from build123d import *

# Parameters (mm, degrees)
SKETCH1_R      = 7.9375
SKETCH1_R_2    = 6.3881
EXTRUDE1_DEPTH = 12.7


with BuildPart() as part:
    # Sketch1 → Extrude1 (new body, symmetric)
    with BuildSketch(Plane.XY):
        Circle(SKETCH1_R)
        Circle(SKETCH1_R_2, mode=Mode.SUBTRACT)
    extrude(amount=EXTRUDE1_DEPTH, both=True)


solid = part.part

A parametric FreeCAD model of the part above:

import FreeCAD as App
import Part
import Sketcher
from FreeCAD import Vector
Q = App.Units.Quantity

doc = App.newDocument("Part")
body = doc.addObject("PartDesign::Body", "Body")

# Sketch on XY plane
sketch1 = doc.addObject("Sketcher::SketchObject", "Sketch")
body.addObject(sketch1)
sketch1.AttachmentSupport = (doc.XY_Plane, [""])
sketch1.MapMode = "FlatFace"
sketch1.addGeometry([
    Part.Circle(Vector(0, 0, 0), Vector(0, 0, 1), 8),
    Part.Circle(Vector(0, 0, 0), Vector(0, 0, 1), 6),
], False)
sketch1.addConstraint([
    Sketcher.Constraint("Coincident", 0, 3, -1, 1),
    Sketcher.Constraint("Coincident", 1, 3, -1, 1),
    Sketcher.Constraint("Diameter", 0, Q("0.625 in")),
    Sketcher.Constraint("Diameter", 1, Q("0.503 in")),
])
pad1 = doc.addObject("PartDesign::Pad", "Pad")
body.addObject(pad1)
pad1.Profile = sketch1
pad1.Length = Q("1 in")
pad1.Midplane = True

doc.recompute()
